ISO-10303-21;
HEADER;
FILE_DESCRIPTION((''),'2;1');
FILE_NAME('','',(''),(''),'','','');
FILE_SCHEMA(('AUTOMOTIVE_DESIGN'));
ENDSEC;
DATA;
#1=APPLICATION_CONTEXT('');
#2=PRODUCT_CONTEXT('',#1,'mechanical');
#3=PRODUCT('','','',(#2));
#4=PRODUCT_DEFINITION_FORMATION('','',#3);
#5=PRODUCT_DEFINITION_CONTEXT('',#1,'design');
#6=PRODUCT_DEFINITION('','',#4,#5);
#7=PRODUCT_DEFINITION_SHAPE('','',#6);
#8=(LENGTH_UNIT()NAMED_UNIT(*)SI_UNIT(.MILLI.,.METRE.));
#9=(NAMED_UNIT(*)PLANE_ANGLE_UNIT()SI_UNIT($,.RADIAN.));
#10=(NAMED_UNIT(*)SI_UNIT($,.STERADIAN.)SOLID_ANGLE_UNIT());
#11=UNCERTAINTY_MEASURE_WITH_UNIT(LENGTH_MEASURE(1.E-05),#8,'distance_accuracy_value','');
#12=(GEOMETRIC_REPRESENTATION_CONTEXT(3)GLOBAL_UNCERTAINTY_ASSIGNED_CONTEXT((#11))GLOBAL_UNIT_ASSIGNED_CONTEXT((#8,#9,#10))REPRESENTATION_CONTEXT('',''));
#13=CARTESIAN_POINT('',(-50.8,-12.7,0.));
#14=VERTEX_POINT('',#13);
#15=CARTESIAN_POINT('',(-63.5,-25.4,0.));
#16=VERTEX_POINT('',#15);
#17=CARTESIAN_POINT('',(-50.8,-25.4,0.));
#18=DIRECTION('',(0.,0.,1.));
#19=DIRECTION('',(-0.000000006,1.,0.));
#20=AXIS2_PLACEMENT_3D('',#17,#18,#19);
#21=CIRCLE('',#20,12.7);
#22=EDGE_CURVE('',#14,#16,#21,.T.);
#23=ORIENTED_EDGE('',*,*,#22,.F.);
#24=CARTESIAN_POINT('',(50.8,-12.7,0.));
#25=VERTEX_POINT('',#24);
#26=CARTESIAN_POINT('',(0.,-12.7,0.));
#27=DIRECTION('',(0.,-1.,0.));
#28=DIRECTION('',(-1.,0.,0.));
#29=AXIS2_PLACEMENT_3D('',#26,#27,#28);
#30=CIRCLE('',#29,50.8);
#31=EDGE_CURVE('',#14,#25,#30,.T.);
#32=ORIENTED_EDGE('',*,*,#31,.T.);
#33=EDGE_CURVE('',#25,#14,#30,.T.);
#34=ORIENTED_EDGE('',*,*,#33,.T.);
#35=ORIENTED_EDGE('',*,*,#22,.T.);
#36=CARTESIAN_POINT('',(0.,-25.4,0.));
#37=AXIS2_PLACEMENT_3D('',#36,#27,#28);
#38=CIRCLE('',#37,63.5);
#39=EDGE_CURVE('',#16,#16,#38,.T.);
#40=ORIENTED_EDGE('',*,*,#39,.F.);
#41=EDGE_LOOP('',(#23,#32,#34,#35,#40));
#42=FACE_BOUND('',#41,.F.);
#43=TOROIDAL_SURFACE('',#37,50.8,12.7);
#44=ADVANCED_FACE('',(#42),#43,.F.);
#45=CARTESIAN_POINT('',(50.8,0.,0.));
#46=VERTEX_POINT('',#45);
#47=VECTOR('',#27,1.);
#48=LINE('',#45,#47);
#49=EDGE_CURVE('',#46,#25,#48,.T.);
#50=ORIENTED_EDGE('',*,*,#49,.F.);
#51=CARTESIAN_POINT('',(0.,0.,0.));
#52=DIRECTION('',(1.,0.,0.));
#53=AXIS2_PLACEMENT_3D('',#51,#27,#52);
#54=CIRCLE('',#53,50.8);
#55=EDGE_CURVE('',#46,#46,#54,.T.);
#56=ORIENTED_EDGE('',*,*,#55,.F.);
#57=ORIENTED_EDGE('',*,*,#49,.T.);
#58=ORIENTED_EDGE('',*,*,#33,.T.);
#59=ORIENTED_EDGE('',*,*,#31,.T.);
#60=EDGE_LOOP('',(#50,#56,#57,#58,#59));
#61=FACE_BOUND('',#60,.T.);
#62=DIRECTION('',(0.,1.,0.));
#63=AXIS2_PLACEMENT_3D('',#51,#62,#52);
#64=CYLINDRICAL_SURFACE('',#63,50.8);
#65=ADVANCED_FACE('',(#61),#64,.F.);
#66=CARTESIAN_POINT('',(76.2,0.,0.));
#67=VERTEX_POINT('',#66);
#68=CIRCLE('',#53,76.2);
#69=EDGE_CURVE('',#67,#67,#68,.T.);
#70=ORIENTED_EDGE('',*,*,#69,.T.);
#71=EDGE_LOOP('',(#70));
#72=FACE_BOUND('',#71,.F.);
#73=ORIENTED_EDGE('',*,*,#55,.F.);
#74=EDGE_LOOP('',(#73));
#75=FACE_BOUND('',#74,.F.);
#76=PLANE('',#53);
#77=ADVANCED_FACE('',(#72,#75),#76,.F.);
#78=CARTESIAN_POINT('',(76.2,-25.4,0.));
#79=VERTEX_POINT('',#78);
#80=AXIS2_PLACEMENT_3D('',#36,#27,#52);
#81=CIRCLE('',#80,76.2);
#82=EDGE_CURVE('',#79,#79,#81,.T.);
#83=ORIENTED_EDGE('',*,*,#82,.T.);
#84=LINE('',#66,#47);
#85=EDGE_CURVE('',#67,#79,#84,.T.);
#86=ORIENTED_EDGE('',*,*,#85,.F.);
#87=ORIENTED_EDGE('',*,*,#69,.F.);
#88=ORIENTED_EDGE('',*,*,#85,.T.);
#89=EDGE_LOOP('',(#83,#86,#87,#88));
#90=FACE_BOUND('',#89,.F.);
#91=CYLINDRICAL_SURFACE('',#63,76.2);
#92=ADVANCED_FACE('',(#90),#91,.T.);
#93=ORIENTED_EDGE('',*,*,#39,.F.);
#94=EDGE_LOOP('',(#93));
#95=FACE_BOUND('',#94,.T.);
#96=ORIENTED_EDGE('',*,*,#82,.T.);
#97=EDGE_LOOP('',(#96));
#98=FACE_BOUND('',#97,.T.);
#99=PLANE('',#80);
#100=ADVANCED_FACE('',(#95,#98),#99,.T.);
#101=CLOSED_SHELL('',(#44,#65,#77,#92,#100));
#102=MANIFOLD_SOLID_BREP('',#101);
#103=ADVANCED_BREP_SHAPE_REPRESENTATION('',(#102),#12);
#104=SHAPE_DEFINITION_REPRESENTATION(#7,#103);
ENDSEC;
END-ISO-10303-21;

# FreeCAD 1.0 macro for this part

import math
import FreeCAD as App
import Part
import Sketcher
Q = App.Units.Quantity

doc = App.newDocument("Part")
body = doc.addObject("PartDesign::Body", "Body")

# Sketch on XZ plane
sketch1 = body.newObject("Sketcher::SketchObject", "Sketch")
sketch1.AttachmentSupport = (doc.getObject("XZ_Plane"), [""])
sketch1.MapMode = "FlatFace"
sketch1.addGeometry([
    Part.Circle(App.Vector(0, 0, 0), App.Vector(0, 0, 1), 76.2),
    Part.Circle(App.Vector(0, 0, 0), App.Vector(0, 0, 1), 50.8),
], False)
sketch1.addConstraint([
    Sketcher.Constraint("Coincident", 0, 3, -1, 1),
    Sketcher.Constraint("Coincident", 1, 3, -1, 1),
    Sketcher.Constraint("Diameter", 0, Q("6 in")),
    Sketcher.Constraint("Diameter", 1, Q("4 in")),
])
pad1 = body.newObject("PartDesign::Pad", "Pad")
pad1.Profile = sketch1
pad1.Length = Q("1 in")

# Sketch on XY plane
sketch2 = body.newObject("Sketcher::SketchObject", "Sketch001")
sketch2.AttachmentSupport = (doc.getObject("XY_Plane"), [""])
sketch2.MapMode = "FlatFace"
sketch2.addGeometry([
    Part.ArcOfCircle(Part.Circle(App.Vector(-50.8, -25.4, 0), App.Vector(0, 0, 1), 12.7), math.radians(90), math.radians(360)),
    Part.ArcOfCircle(Part.Circle(App.Vector(-50.8, -25.4, 0), App.Vector(0, 0, 1), 12.7), math.radians(0.000002), math.radians(89.999998)),
], False)
sketch2.addConstraint([
    Sketcher.Constraint("Tangent", 0, 1, 1, 2),
    Sketcher.Constraint("Coincident", 1, 1, 0, 2),
    Sketcher.Constraint("Horizontal", 0, 3, 1, 1),
    Sketcher.Constraint("Vertical", 1, 3, 0, 1),
    Sketcher.Constraint("Radius", 0, Q("0.5 in")),
    Sketcher.Constraint("DistanceX", 0, 3, -1, 1, Q("2 in")),
    Sketcher.Constraint("DistanceY", 0, 3, -1, 1, Q("1 in")),
])
groove = body.newObject("PartDesign::Groove", "Groove")
groove.Profile = sketch2
groove.ReferenceAxis = (sketch2, ["V_Axis"])
groove.Angle = 360

doc.recompute()
